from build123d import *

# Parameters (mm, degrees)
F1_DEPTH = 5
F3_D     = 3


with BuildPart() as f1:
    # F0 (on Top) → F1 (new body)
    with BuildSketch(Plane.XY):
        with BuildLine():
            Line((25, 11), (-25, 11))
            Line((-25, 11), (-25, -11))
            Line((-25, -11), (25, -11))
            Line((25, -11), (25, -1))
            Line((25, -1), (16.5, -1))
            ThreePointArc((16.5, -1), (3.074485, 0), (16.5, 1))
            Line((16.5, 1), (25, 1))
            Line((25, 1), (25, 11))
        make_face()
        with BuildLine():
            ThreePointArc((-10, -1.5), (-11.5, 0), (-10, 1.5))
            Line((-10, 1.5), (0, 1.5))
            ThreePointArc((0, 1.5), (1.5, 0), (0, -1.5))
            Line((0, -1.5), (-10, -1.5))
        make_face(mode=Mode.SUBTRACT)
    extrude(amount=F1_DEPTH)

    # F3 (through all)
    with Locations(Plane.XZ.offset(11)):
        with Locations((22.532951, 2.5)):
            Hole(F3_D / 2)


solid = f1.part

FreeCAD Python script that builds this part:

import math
import FreeCAD as App
import Part
import Sketcher
from FreeCAD import Vector

doc = App.newDocument("Part")
params = doc.addObject("Spreadsheet::Sheet", "Params")
for row, (alias, value) in enumerate([
    ("sketch1_radius", "1.5 mm"),
    ("sketch1_width", "50 mm"),
    ("sketch1_width2", "10 mm"),
    ("sketch1_height", "22 mm"),
    ("sketch1_radius2", "6.75 mm"),
    ("pad1_length", "5 mm"),
    ("sketch2_diameter", "3 mm"),
    ("hole_diameter", "3 mm"),
], start=1):
    params.set(f"A{row}", alias)
    params.set(f"B{row}", "=" + value)
    params.setAlias(f"B{row}", alias)

body = doc.addObject("PartDesign::Body", "Body")

# Sketch on XY plane
sketch1 = doc.addObject("Sketcher::SketchObject", "Sketch")
body.addObject(sketch1)
sketch1.AttachmentSupport = (doc.XY_Plane, [""])
sketch1.MapMode = "FlatFace"
sketch1.addGeometry([
    Part.LineSegment(Vector(25, 11, 0), Vector(-25, 11, 0)),  # 0
    Part.LineSegment(Vector(-25, 11, 0), Vector(-25, -11, 0)),  # 1
    Part.LineSegment(Vector(-25, -11, 0), Vector(25, -11, 0)),  # 2
    Part.LineSegment(Vector(25, -11, 0), Vector(25, -1, 0)),  # 3
    Part.LineSegment(Vector(25, -1, 0), Vector(16.5, -1, 0)),  # 4
    Part.ArcOfCircle(Part.Circle(Vector(9.824485, 0, 0), Vector(0, 0, 1), 6.75), math.radians(8.519624), math.radians(351.480376)),  # 5
    Part.LineSegment(Vector(16.5, 1, 0), Vector(25, 1, 0)),  # 6
    Part.LineSegment(Vector(25, 1, 0), Vector(25, 11, 0)),  # 7
    Part.LineSegment(Vector(0, -1.5, 0), Vector(-10, -1.5, 0)),  # 8
    Part.ArcOfCircle(Part.Circle(Vector(-10, 0, 0), Vector(0, 0, 1), 1.5), math.radians(90), math.radians(270)),  # 9
    Part.LineSegment(Vector(-10, 1.5, 0), Vector(0, 1.5, 0)),  # 10
    Part.ArcOfCircle(Part.Circle(Vector(0, 0, 0), Vector(0, 0, 1), 1.5), math.radians(-90), math.radians(90)),  # 11
], False)
sketch1.addConstraint([
    Sketcher.Constraint("Coincident", 0, 2, 1, 1),
    Sketcher.Constraint("Coincident", 1, 2, 2, 1),
    Sketcher.Constraint("Coincident", 2, 2, 3, 1),
    Sketcher.Constraint("Coincident", 3, 2, 4, 1),
    Sketcher.Constraint("Coincident", 4, 2, 5, 2),
    Sketcher.Constraint("Coincident", 5, 1, 6, 1),
    Sketcher.Constraint("Coincident", 6, 2, 7, 1),
    Sketcher.Constraint("Coincident", 7, 2, 0, 1),
    Sketcher.Constraint("Tangent", 8, 2, 9, 2),
    Sketcher.Constraint("Tangent", 9, 1, 10, 1),
    Sketcher.Constraint("Tangent", 10, 2, 11, 2),
    Sketcher.Constraint("Tangent", 11, 1, 8, 1),
    Sketcher.Constraint("Horizontal", 0),
    Sketcher.Constraint("Vertical", 1),
    Sketcher.Constraint("Horizontal", 2),
    Sketcher.Constraint("Vertical", 3),
    Sketcher.Constraint("Horizontal", 4),
    Sketcher.Constraint("Horizontal", 6),
    Sketcher.Constraint("Vertical", 7),
    Sketcher.Constraint("Horizontal", 8),
    Sketcher.Constraint("Horizontal", 10),
    Sketcher.Constraint("Coincident", 11, 3, -1, 1),
    Sketcher.Constraint("Symmetric", 0, 2, 2, 2, -1, 1),
    Sketcher.Constraint("Symmetric", 4, 2, 5, 1, -1),
    Sketcher.Constraint("Vertical", 3, 2, 6, 2),
    Sketcher.Constraint("Equal", 10, 3),
    Sketcher.Constraint("Radius", 9, 1.5),
    Sketcher.Constraint("DistanceX", 0, 2, 0, 1, 50.0),
    Sketcher.Constraint("DistanceX", 8, 2, 8, 1, 10.0),
    Sketcher.Constraint("DistanceY", 1, 2, 1, 1, 22.0),
    Sketcher.Constraint("Radius", 5, 6.75),
    Sketcher.Constraint("DistanceX", 4, 2, 4, 1, 8.5),
])
sketch1.setExpression("Constraints[26]", "Params.sketch1_radius")
sketch1.setExpression("Constraints[27]", "Params.sketch1_width")
sketch1.setExpression("Constraints[28]", "Params.sketch1_width2")
sketch1.setExpression("Constraints[29]", "Params.sketch1_height")
sketch1.setExpression("Constraints[30]", "Params.sketch1_radius2")
pad1 = doc.addObject("PartDesign::Pad", "Pad")
body.addObject(pad1)
pad1.Profile = sketch1
pad1.setExpression("Length", "Params.pad1_length")

# Sketch on XZ plane
sketch2 = doc.addObject("Sketcher::SketchObject", "Sketch001")
body.addObject(sketch2)
sketch2.AttachmentSupport = (doc.XZ_Plane, [""])
sketch2.MapMode = "FlatFace"
sketch2.AttachmentOffset = App.Placement(Vector(0, 0, 11), App.Rotation())
sketch2.addGeometry(Part.Circle(Vector(22.532951, 2.5, 0), Vector(0, 0, 1), 1.5), False)
sketch2.addConstraint([
    Sketcher.Constraint("Diameter", 0, 3.0),
    Sketcher.Constraint("DistanceY", -1, 1, 0, 3, 2.5),
    Sketcher.Constraint("DistanceX", -1, 1, 0, 3, 22.532951),
])
sketch2.setExpression("Constraints[0]", "Params.sketch2_diameter")
doc.recompute()
hole = doc.addObject("PartDesign::Hole", "Hole")
body.addObject(hole)
hole.Profile = sketch2
hole.ThreadType = "None"
hole.setExpression("Diameter", "Params.hole_diameter")
hole.DepthType = "ThroughAll"

doc.recompute()
